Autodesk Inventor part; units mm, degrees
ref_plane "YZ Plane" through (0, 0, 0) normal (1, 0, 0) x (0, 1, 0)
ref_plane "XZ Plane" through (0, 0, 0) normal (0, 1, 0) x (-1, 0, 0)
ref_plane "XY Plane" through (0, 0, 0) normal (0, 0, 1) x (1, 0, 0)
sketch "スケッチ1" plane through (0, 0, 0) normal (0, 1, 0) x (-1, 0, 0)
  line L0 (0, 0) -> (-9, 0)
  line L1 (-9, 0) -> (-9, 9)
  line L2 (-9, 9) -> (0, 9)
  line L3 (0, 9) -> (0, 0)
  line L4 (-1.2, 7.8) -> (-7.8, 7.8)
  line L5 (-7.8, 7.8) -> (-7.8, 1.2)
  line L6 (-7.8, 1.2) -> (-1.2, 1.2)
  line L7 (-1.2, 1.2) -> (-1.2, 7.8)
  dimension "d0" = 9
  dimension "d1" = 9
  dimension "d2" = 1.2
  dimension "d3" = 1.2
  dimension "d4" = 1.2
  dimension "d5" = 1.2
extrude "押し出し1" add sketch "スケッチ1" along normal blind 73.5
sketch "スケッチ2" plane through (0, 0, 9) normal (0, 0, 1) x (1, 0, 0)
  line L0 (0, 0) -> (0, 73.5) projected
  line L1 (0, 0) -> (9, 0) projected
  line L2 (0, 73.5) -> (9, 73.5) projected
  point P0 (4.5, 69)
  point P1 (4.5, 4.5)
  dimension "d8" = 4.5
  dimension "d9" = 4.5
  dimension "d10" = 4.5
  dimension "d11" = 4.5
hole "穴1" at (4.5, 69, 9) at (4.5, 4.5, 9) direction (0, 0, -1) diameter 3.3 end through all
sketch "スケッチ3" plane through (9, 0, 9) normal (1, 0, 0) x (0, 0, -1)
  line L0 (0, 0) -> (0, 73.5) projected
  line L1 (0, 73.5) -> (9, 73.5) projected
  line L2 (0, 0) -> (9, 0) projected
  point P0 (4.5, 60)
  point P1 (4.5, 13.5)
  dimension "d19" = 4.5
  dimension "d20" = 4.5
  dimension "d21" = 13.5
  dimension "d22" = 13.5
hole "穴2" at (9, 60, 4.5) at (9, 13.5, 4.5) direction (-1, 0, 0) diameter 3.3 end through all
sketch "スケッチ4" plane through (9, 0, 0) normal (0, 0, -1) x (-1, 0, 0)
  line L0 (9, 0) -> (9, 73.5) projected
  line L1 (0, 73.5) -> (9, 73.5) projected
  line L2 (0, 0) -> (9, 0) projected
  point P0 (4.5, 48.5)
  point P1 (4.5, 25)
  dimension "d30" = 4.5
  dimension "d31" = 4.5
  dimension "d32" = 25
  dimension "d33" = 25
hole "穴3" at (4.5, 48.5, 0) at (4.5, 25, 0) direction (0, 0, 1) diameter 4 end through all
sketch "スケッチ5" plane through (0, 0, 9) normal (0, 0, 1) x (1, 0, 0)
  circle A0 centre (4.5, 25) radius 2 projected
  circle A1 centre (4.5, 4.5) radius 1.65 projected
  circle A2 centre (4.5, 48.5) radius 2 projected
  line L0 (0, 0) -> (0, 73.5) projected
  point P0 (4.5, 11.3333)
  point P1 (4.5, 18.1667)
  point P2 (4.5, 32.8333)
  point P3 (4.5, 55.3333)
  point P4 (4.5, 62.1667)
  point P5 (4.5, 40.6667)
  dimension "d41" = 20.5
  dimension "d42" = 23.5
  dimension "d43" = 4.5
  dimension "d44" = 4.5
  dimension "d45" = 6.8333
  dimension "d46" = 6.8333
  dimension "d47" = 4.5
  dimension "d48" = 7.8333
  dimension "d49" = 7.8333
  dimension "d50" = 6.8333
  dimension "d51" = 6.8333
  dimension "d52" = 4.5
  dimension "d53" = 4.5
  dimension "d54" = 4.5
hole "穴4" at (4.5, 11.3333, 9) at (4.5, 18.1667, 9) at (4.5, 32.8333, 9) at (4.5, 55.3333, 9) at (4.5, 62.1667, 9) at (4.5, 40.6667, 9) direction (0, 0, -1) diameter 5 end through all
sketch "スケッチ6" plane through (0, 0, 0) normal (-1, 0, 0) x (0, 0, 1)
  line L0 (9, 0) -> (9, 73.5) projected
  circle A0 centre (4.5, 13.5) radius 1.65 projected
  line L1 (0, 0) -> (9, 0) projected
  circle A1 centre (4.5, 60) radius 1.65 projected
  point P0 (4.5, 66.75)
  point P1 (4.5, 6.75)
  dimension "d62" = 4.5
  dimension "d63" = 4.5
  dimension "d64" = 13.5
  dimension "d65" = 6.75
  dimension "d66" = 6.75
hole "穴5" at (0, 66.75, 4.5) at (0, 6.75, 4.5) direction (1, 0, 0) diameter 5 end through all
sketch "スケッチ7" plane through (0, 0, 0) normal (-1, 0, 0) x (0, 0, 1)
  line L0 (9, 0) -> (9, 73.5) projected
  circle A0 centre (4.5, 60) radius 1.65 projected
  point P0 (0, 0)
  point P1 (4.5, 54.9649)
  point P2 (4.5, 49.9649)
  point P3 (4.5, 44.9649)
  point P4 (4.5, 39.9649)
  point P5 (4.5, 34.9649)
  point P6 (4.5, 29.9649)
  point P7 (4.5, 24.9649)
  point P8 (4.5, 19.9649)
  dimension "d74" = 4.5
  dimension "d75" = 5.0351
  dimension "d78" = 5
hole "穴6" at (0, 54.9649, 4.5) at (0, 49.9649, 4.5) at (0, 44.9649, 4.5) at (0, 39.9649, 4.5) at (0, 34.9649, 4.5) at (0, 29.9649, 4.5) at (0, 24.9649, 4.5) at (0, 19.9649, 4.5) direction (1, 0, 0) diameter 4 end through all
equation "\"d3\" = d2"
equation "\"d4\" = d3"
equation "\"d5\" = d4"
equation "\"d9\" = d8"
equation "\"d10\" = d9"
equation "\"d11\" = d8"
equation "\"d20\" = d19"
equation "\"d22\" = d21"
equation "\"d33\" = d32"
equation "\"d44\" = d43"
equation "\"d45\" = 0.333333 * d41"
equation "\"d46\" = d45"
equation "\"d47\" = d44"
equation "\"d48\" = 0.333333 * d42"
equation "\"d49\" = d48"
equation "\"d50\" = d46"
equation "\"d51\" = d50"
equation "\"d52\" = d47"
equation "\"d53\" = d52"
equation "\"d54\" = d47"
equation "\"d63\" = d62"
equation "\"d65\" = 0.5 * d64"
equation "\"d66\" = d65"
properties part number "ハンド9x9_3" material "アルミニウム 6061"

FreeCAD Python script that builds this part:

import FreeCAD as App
import Part
import Sketcher
Q = App.Units.Quantity

doc = App.newDocument("Part")
body = doc.addObject("PartDesign::Body", "Body")

# Sketch on XZ plane
sketch1 = body.newObject("Sketcher::SketchObject", "Sketch")
sketch1.AttachmentSupport = (doc.getObject("XZ_Plane"), [""])
sketch1.MapMode = "FlatFace"
sketch1.addGeometry([
    Part.LineSegment(App.Vector(9, 0, 0), App.Vector(0, 0, 0)),  # 0
    Part.LineSegment(App.Vector(0, 0, 0), App.Vector(0, 9, 0)),  # 1
    Part.LineSegment(App.Vector(0, 9, 0), App.Vector(9, 9, 0)),  # 2
    Part.LineSegment(App.Vector(9, 9, 0), App.Vector(9, 0, 0)),  # 3
    Part.LineSegment(App.Vector(7.8, 7.8, 0), App.Vector(1.2, 7.8, 0)),  # 4
    Part.LineSegment(App.Vector(1.2, 7.8, 0), App.Vector(1.2, 1.2, 0)),  # 5
    Part.LineSegment(App.Vector(1.2, 1.2, 0), App.Vector(7.8, 1.2, 0)),  # 6
    Part.LineSegment(App.Vector(7.8, 1.2, 0), App.Vector(7.8, 7.8, 0)),  # 7
], False)
sketch1.addConstraint([
    Sketcher.Constraint("Coincident", 0, 2, 1, 1),
    Sketcher.Constraint("Coincident", 1, 2, 2, 1),
    Sketcher.Constraint("Coincident", 2, 2, 3, 1),
    Sketcher.Constraint("Coincident", 3, 2, 0, 1),
    Sketcher.Constraint("Coincident", 4, 2, 5, 1),
    Sketcher.Constraint("Coincident", 5, 2, 6, 1),
    Sketcher.Constraint("Coincident", 6, 2, 7, 1),
    Sketcher.Constraint("Coincident", 7, 2, 4, 1),
    Sketcher.Constraint("Horizontal", 0),
    Sketcher.Constraint("Vertical", 1),
    Sketcher.Constraint("Horizontal", 2),
    Sketcher.Constraint("Vertical", 3),
    Sketcher.Constraint("Horizontal", 4),
    Sketcher.Constraint("Vertical", 5),
    Sketcher.Constraint("Horizontal", 6),
    Sketcher.Constraint("Vertical", 7),
    Sketcher.Constraint("Coincident", 0, 2, -1, 1),
    Sketcher.Constraint("Equal", 2, 1),
    Sketcher.Constraint("Equal", 6, 5),
    Sketcher.Constraint("DistanceX", 0, 2, 0, 1, Q("9 mm")),
    Sketcher.Constraint("DistanceX", -1, 1, 4, 2, Q("1.2 mm")),
    Sketcher.Constraint("DistanceY", -1, 1, 5, 2, Q("1.2 mm")),
    Sketcher.Constraint("DistanceY", 4, 2, 1, 2, Q("1.2 mm")),
])
pad1 = body.newObject("PartDesign::Pad", "Pad")
pad1.Profile = sketch1
pad1.Length = 73.5
pad1.Reversed = True

# Sketch on XY plane
sketch2 = body.newObject("Sketcher::SketchObject", "Sketch001")
sketch2.AttachmentSupport = (doc.getObject("XY_Plane"), [""])
sketch2.MapMode = "FlatFace"
sketch2.AttachmentOffset = App.Placement(App.Vector(0, 0, 9), App.Rotation())
sketch2.addGeometry([
    Part.Circle(App.Vector(4.5, 69, 0), App.Vector(0, 0, 1), 1.65),
    Part.Circle(App.Vector(4.5, 4.5, 0), App.Vector(0, 0, 1), 1.65),
], False)
sketch2.addConstraint([
    Sketcher.Constraint("Equal", 0, 1),
    Sketcher.Constraint("Vertical", 0, 3, 1, 3),
    Sketcher.Constraint("Diameter", 0, Q("3.3 mm")),
    Sketcher.Constraint("DistanceY", -1, 1, 0, 3, Q("69 mm")),
    Sketcher.Constraint("DistanceX", -1, 1, 0, 3, Q("4.5 mm")),
    Sketcher.Constraint("DistanceY", -1, 1, 1, 3, Q("4.5 mm")),
])
doc.recompute()
hole = body.newObject("PartDesign::Hole", "Hole")
hole.Profile = sketch2
hole.ThreadType = "None"
hole.Diameter = 3.3
hole.DepthType = "ThroughAll"

# Sketch on YZ plane
sketch3 = body.newObject("Sketcher::SketchObject", "Sketch002")
sketch3.AttachmentSupport = (doc.getObject("YZ_Plane"), [""])
sketch3.MapMode = "FlatFace"
sketch3.AttachmentOffset = App.Placement(App.Vector(0, 0, 9), App.Rotation())
sketch3.addGeometry([
    Part.Circle(App.Vector(60, 4.5, 0), App.Vector(0, 0, 1), 1.65),
    Part.Circle(App.Vector(13.5, 4.5, 0), App.Vector(0, 0, 1), 1.65),
], False)
sketch3.addConstraint([
    Sketcher.Constraint("Equal", 0, 1),
    Sketcher.Constraint("Horizontal", 0, 3, 1, 3),
    Sketcher.Constraint("Diameter", 0, Q("3.3 mm")),
    Sketcher.Constraint("DistanceX", -1, 1, 0, 3, Q("60 mm")),
    Sketcher.Constraint("DistanceY", -1, 1, 0, 3, Q("4.5 mm")),
    Sketcher.Constraint("DistanceX", -1, 1, 1, 3, Q("13.5 mm")),
])
doc.recompute()
hole2 = body.newObject("PartDesign::Hole", "Hole001")
hole2.Profile = sketch3
hole2.ThreadType = "None"
hole2.Diameter = 3.3
hole2.DepthType = "ThroughAll"

# Sketch on XY plane
sketch4 = body.newObject("Sketcher::SketchObject", "Sketch003")
sketch4.AttachmentSupport = (doc.getObject("XY_Plane"), [""])
sketch4.MapMode = "FlatFace"
sketch4.addGeometry([
    Part.Circle(App.Vector(4.5, 48.5, 0), App.Vector(0, 0, 1), 2),
    Part.Circle(App.Vector(4.5, 25, 0), App.Vector(0, 0, 1), 2),
], False)
sketch4.addConstraint([
    Sketcher.Constraint("Equal", 0, 1),
    Sketcher.Constraint("Vertical", 0, 3, 1, 3),
    Sketcher.Constraint("Diameter", 0, Q("4 mm")),
    Sketcher.Constraint("DistanceY", -1, 1, 1, 3, Q("25 mm")),
    Sketcher.Constraint("DistanceX", -1, 1, 0, 3, Q("4.5 mm")),
    Sketcher.Constraint("DistanceY", -1, 1, 0, 3, Q("48.5 mm")),
])
doc.recompute()
hole3 = body.newObject("PartDesign::Hole", "Hole002")
hole3.Profile = sketch4
hole3.ThreadType = "None"
hole3.Diameter = 4
hole3.DepthType = "ThroughAll"
hole3.Reversed = True

# Sketch on XY plane
sketch5 = body.newObject("Sketcher::SketchObject", "Sketch004")
sketch5.AttachmentSupport = (doc.getObject("XY_Plane"), [""])
sketch5.MapMode = "FlatFace"
sketch5.AttachmentOffset = App.Placement(App.Vector(0, 0, 9), App.Rotation())
sketch5.addGeometry([
    Part.Circle(App.Vector(4.5, 11.3333, 0), App.Vector(0, 0, 1), 2.5),  # 0
    Part.Circle(App.Vector(4.5, 18.1667, 0), App.Vector(0, 0, 1), 2.5),  # 1
    Part.Circle(App.Vector(4.5, 32.8333, 0), App.Vector(0, 0, 1), 2.5),  # 2
    Part.Circle(App.Vector(4.5, 55.3333, 0), App.Vector(0, 0, 1), 2.5),  # 3
    Part.Circle(App.Vector(4.5, 62.1667, 0), App.Vector(0, 0, 1), 2.5),  # 4
    Part.Circle(App.Vector(4.5, 40.6667, 0), App.Vector(0, 0, 1), 2.5),  # 5
], False)
sketch5.addConstraint([
    Sketcher.Constraint("Equal", 0, 1),
    Sketcher.Constraint("Equal", 1, 2),
    Sketcher.Constraint("Equal", 2, 3),
    Sketcher.Constraint("Equal", 3, 4),
    Sketcher.Constraint("Equal", 4, 5),
    Sketcher.Constraint("Vertical", 0, 3, 1, 3),
    Sketcher.Constraint("Vertical", 1, 3, 2, 3),
    Sketcher.Constraint("Vertical", 2, 3, 3, 3),
    Sketcher.Constraint("Vertical", 3, 3, 4, 3),
    Sketcher.Constraint("Vertical", 4, 3, 5, 3),
    Sketcher.Constraint("Diameter", 0, Q("5 mm")),
    Sketcher.Constraint("DistanceY", 0, 3, 3, 3, Q("44 mm")),
    Sketcher.Constraint("DistanceY", 1, 3, 4, 3, Q("44 mm")),
    Sketcher.Constraint("DistanceX", -1, 1, 0, 3, Q("4.5 mm")),
    Sketcher.Constraint("DistanceY", 0, 3, 2, 3, Q("21.5 mm")),
    Sketcher.Constraint("DistanceY", 5, 3, 4, 3, Q("21.5 mm")),
    Sketcher.Constraint("DistanceY", -1, 1, 0, 3, Q("11.3333 mm")),
    Sketcher.Constraint("DistanceY", -1, 1, 1, 3, Q("18.1667 mm")),
])
doc.recompute()
hole4 = body.newObject("PartDesign::Hole", "Hole003")
hole4.Profile = sketch5
hole4.ThreadType = "None"
hole4.Diameter = 5
hole4.DepthType = "ThroughAll"

# Sketch on YZ plane
sketch6 = body.newObject("Sketcher::SketchObject", "Sketch005")
sketch6.AttachmentSupport = (doc.getObject("YZ_Plane"), [""])
sketch6.MapMode = "FlatFace"
sketch6.addGeometry([
    Part.Circle(App.Vector(66.75, 4.5, 0), App.Vector(0, 0, 1), 2.5),
    Part.Circle(App.Vector(6.75, 4.5, 0), App.Vector(0, 0, 1), 2.5),
], False)
sketch6.addConstraint([
    Sketcher.Constraint("Equal", 0, 1),
    Sketcher.Constraint("Horizontal", 0, 3, 1, 3),
    Sketcher.Constraint("Diameter", 0, Q("5 mm")),
    Sketcher.Constraint("DistanceX", 1, 3, 0, 3, Q("60 mm")),
    Sketcher.Constraint("DistanceY", -1, 1, 0, 3, Q("4.5 mm")),
    Sketcher.Constraint("DistanceX", -1, 1, 0, 3, Q("66.75 mm")),
])
doc.recompute()
hole5 = body.newObject("PartDesign::Hole", "Hole004")
hole5.Profile = sketch6
hole5.ThreadType = "None"
hole5.Diameter = 5
hole5.DepthType = "ThroughAll"
hole5.Reversed = True

# Sketch on YZ plane
sketch7 = body.newObject("Sketcher::SketchObject", "Sketch006")
sketch7.AttachmentSupport = (doc.getObject("YZ_Plane"), [""])
sketch7.MapMode = "FlatFace"
sketch7.addGeometry([
    Part.Circle(App.Vector(54.9649, 4.5, 0), App.Vector(0, 0, 1), 2),  # 0
    Part.Circle(App.Vector(49.9649, 4.5, 0), App.Vector(0, 0, 1), 2),  # 1
    Part.Circle(App.Vector(44.9649, 4.5, 0), App.Vector(0, 0, 1), 2),  # 2
    Part.Circle(App.Vector(39.9649, 4.5, 0), App.Vector(0, 0, 1), 2),  # 3
    Part.Circle(App.Vector(34.9649, 4.5, 0), App.Vector(0, 0, 1), 2),  # 4
    Part.Circle(App.Vector(29.9649, 4.5, 0), App.Vector(0, 0, 1), 2),  # 5
    Part.Circle(App.Vector(24.9649, 4.5, 0), App.Vector(0, 0, 1), 2),  # 6
    Part.Circle(App.Vector(19.9649, 4.5, 0), App.Vector(0, 0, 1), 2),  # 7
], False)
sketch7.addConstraint([
    Sketcher.Constraint("Equal", 0, 1),
    Sketcher.Constraint("Equal", 1, 2),
    Sketcher.Constraint("Equal", 2, 3),
    Sketcher.Constraint("Equal", 3, 4),
    Sketcher.Constraint("Equal", 4, 5),
    Sketcher.Constraint("Equal", 5, 6),
    Sketcher.Constraint("Equal", 6, 7),
    Sketcher.Constraint("Horizontal", 0, 3, 1, 3),
    Sketcher.Constraint("Horizontal", 1, 3, 2, 3),
    Sketcher.Constraint("Horizontal", 2, 3, 3, 3),
    Sketcher.Constraint("Horizontal", 3, 3, 4, 3),
    Sketcher.Constraint("Horizontal", 4, 3, 5, 3),
    Sketcher.Constraint("Horizontal", 5, 3, 6, 3),
    Sketcher.Constraint("Horizontal", 6, 3, 7, 3),
    Sketcher.Constraint("Diameter", 0, Q("4 mm")),
    Sketcher.Constraint("DistanceX", 1, 3, 0, 3, Q("5 mm")),
    Sketcher.Constraint("DistanceX", 2, 3, 1, 3, Q("5 mm")),
    Sketcher.Constraint("DistanceX", 3, 3, 2, 3, Q("5 mm")),
    Sketcher.Constraint("DistanceX", 4, 3, 3, 3, Q("5 mm")),
    Sketcher.Constraint("DistanceX", 5, 3, 4, 3, Q("5 mm")),
    Sketcher.Constraint("DistanceX", 6, 3, 5, 3, Q("5 mm")),
    Sketcher.Constraint("DistanceX", 7, 3, 6, 3, Q("5 mm")),
    Sketcher.Constraint("DistanceY", -1, 1, 0, 3, Q("4.5 mm")),
    Sketcher.Constraint("DistanceX", -1, 1, 0, 3, Q("54.965 mm")),
])
doc.recompute()
hole6 = body.newObject("PartDesign::Hole", "Hole005")
hole6.Profile = sketch7
hole6.ThreadType = "None"
hole6.Diameter = 4
hole6.DepthType = "ThroughAll"
hole6.Reversed = True

doc.recompute()
